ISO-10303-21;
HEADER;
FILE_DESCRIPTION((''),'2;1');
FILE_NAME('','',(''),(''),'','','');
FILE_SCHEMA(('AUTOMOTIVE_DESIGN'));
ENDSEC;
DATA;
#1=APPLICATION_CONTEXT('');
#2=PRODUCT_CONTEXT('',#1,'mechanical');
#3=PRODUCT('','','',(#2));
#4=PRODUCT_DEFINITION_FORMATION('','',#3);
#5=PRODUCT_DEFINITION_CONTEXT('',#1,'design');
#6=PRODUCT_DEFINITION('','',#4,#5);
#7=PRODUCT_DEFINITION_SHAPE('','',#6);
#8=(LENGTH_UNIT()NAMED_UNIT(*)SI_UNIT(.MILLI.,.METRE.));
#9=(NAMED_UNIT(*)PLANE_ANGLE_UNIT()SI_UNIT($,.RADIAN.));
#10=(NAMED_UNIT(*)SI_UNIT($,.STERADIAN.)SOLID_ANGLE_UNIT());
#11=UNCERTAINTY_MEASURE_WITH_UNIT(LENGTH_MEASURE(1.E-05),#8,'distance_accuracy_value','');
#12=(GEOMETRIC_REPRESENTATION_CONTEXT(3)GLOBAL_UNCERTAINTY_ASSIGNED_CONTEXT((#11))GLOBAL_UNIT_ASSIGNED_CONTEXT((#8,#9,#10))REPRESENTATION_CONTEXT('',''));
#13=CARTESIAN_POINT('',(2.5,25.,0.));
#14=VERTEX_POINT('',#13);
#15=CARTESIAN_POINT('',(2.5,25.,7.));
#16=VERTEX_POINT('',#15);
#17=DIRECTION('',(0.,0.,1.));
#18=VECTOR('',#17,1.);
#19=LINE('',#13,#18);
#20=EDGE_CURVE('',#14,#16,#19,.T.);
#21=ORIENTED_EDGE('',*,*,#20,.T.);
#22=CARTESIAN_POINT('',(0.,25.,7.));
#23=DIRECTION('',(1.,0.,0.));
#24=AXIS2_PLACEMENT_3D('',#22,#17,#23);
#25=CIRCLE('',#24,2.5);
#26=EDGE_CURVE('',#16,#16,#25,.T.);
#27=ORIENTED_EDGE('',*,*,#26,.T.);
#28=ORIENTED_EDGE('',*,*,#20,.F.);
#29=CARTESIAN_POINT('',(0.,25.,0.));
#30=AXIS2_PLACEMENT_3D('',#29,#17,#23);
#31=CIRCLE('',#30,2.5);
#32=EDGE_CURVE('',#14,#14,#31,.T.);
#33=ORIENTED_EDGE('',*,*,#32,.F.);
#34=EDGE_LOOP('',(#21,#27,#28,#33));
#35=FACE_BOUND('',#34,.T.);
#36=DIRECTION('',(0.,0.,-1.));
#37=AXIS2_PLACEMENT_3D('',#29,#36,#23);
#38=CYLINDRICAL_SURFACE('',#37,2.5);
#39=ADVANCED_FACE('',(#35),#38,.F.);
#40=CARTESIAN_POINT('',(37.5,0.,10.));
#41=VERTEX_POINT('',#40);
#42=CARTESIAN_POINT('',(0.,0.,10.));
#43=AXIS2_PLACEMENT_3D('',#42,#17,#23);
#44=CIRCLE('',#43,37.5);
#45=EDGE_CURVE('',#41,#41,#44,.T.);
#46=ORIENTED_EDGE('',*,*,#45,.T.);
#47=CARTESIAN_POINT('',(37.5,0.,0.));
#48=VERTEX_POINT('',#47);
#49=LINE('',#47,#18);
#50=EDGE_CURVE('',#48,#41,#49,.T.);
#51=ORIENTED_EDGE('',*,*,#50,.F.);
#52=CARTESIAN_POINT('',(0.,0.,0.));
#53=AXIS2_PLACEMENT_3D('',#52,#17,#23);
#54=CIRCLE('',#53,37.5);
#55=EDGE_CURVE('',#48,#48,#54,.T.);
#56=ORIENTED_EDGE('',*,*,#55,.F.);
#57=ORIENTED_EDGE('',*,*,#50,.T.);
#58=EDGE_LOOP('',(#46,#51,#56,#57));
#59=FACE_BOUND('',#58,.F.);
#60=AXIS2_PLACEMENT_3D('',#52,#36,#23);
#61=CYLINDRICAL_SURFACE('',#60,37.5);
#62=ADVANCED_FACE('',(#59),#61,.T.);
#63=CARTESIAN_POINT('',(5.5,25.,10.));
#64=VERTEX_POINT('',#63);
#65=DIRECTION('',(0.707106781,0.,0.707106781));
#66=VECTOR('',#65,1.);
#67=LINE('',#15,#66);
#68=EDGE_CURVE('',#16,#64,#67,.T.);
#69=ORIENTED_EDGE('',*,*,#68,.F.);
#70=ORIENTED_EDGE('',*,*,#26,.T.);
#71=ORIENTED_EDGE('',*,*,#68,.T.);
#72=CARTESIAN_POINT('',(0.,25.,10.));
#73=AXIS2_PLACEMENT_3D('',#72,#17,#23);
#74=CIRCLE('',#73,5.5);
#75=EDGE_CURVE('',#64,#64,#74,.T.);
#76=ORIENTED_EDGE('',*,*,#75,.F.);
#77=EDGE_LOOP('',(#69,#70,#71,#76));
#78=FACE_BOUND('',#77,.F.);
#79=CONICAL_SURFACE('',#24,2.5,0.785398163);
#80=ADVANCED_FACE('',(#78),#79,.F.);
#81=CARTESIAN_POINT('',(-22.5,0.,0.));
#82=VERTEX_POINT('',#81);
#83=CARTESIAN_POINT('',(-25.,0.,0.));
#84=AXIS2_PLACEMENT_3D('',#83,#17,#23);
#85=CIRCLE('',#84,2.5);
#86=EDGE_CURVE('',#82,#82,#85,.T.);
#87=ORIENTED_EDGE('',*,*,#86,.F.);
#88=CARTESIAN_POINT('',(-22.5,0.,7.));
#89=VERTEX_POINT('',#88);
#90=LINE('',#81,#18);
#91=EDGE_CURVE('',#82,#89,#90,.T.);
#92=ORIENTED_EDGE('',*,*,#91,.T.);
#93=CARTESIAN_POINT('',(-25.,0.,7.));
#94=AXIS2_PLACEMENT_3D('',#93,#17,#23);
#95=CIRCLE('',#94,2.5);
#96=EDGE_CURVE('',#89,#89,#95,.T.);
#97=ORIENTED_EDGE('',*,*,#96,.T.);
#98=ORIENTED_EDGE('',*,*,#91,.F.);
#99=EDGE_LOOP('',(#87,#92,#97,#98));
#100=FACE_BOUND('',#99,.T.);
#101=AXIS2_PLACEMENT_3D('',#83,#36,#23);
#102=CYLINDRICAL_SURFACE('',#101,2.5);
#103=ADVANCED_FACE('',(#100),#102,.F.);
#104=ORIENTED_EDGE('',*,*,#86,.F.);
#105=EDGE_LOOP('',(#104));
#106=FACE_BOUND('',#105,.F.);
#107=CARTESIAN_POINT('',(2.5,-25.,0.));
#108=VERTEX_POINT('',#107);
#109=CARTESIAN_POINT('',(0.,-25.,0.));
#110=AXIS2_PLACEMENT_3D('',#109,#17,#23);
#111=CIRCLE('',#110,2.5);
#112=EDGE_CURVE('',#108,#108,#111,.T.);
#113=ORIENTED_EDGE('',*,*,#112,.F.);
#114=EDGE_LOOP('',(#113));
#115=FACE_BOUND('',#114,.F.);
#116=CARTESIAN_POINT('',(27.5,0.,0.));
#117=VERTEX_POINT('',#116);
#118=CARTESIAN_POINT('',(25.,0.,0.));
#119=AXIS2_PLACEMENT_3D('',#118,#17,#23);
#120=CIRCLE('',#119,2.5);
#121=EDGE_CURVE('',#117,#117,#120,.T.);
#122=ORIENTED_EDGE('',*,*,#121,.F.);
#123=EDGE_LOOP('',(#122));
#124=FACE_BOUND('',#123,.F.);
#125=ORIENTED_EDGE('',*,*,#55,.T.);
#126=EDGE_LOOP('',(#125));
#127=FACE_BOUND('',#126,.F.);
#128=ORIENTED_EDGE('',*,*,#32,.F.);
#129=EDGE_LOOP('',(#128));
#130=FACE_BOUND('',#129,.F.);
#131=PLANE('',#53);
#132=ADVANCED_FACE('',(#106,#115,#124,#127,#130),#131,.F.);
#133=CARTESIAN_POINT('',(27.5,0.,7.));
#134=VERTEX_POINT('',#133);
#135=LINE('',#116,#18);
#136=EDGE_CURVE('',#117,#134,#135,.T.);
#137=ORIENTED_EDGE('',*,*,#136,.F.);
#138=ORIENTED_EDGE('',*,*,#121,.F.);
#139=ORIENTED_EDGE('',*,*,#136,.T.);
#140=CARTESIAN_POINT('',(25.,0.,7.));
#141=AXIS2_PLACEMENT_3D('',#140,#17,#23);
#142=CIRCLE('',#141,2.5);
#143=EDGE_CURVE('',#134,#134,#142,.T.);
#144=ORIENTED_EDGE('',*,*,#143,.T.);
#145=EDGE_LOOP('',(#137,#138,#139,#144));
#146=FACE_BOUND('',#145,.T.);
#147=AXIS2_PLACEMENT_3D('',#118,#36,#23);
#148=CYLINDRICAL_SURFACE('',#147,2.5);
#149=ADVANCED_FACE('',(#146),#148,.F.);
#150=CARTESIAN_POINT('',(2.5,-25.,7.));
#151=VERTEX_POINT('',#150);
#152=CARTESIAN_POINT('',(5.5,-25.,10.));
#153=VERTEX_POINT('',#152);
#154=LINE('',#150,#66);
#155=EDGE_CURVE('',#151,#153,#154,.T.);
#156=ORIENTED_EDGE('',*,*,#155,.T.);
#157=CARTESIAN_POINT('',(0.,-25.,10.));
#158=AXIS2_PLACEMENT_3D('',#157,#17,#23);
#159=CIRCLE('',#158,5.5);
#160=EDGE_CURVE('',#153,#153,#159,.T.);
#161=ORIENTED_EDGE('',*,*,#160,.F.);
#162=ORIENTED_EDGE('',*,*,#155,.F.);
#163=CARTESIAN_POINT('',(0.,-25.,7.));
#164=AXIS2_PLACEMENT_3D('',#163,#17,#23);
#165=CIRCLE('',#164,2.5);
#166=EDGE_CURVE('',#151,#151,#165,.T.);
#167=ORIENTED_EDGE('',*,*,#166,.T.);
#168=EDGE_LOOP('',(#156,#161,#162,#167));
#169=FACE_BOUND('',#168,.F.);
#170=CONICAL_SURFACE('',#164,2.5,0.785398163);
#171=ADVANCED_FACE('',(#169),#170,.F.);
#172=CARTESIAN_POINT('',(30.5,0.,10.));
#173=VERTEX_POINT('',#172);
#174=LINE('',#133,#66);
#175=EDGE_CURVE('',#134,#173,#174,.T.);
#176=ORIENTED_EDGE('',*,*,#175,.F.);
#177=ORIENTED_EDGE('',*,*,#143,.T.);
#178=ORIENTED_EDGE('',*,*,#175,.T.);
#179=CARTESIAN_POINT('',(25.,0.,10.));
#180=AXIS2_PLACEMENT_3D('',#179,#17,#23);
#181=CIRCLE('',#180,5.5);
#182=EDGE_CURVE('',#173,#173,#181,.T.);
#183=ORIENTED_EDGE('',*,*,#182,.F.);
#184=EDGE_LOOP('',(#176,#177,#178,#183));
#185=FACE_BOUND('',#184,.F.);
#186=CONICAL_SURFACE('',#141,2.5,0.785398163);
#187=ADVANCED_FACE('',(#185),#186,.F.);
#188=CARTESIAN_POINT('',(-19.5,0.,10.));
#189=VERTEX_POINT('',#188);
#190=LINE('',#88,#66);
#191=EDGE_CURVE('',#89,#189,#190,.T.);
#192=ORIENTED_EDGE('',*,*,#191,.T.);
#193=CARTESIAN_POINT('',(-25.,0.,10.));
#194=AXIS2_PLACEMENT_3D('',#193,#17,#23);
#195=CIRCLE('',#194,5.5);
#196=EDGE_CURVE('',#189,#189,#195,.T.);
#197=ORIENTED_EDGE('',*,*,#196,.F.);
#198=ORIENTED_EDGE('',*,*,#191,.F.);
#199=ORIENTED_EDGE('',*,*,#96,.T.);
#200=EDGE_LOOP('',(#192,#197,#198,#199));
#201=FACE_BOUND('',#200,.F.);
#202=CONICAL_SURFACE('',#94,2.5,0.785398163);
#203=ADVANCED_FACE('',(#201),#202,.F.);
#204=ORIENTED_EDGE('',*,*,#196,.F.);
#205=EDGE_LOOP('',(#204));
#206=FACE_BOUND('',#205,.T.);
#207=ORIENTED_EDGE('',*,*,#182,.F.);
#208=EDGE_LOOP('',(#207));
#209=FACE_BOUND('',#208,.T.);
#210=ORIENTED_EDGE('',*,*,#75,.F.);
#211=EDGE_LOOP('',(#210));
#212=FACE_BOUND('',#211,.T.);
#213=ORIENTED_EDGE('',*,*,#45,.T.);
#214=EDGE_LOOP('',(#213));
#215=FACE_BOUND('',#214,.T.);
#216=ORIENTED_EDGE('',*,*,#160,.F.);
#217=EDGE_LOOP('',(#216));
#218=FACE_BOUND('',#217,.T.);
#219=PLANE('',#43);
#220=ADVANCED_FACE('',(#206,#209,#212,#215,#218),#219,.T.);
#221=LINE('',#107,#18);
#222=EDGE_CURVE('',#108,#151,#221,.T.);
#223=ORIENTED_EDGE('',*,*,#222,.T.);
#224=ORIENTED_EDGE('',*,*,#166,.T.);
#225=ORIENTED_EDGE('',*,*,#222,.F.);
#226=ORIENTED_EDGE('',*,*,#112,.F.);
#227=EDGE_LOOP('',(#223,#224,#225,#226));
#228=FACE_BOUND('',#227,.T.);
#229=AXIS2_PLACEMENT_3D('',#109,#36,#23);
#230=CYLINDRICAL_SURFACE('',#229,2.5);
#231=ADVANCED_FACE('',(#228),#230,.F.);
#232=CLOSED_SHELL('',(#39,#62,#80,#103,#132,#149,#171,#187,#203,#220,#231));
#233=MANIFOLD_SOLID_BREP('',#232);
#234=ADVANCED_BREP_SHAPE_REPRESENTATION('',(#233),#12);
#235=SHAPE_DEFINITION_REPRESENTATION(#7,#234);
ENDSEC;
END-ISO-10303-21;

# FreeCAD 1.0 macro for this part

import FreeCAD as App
import Part
import Sketcher

V = App.Vector


def edges_at(feature, points):
    """Names of the edges that pass closest to the given points."""
    edges = feature.Shape.Edges
    near = lambda p: min(range(len(edges)), key=lambda i: edges[i].distToShape(Part.Vertex(*p))[0])
    return sorted({f"Edge{near(p) + 1}" for p in points})

doc = App.newDocument("Part")
body = doc.addObject("PartDesign::Body", "Body")

# Sketch on XY plane
sketch1 = body.newObject("Sketcher::SketchObject", "Sketch")
sketch1.AttachmentSupport = (doc.getObject("XY_Plane"), [""])
sketch1.MapMode = "FlatFace"
sketch1.addGeometry([
    Part.Circle(V(0, 0, 0), V(0, 0, 1), 37.5),  # 0
    Part.Circle(V(0, -25, 0), V(0, 0, 1), 2.5),  # 1
    Part.Circle(V(-25, 0, 0), V(0, 0, 1), 2.5),  # 2
    Part.Circle(V(25, 0, 0), V(0, 0, 1), 2.5),  # 3
    Part.Circle(V(0, 25, 0), V(0, 0, 1), 2.5),  # 4
], False)
sketch1.addConstraint([
    Sketcher.Constraint("Coincident", 0, 3, -1, 1),
    Sketcher.Constraint("Equal", 1, 2),
    Sketcher.Constraint("Equal", 2, 3),
    Sketcher.Constraint("Equal", 3, 4),
    Sketcher.Constraint("Symmetric", 2, 3, 3, 3, -1, 1),
    Sketcher.Constraint("Symmetric", 1, 3, 4, 3, -1, 1),
    Sketcher.Constraint("PointOnObject", 1, 3, -2),
    Sketcher.Constraint("PointOnObject", 2, 3, -1),
    Sketcher.Constraint("Diameter", 0, 75.0),
    Sketcher.Constraint("Diameter", 1, 5.0),
    Sketcher.Constraint("DistanceY", 1, 3, -1, 1, 25.0),
    Sketcher.Constraint("DistanceX", 2, 3, -1, 1, 25.0),
])
pad1 = body.newObject("PartDesign::Pad", "Pad")
pad1.Profile = sketch1
pad1.Length = 10
doc.recompute()

chamfer = body.newObject("PartDesign::Chamfer", "Chamfer")
chamfer.Base = (pad1, edges_at(pad1, [
    (-2.5, 25, 10),
    (22.5, 0, 10),
    (-2.5, -25, 10),
    (-27.5, 0, 10),
]))
chamfer.Size = 3

doc.recompute()
